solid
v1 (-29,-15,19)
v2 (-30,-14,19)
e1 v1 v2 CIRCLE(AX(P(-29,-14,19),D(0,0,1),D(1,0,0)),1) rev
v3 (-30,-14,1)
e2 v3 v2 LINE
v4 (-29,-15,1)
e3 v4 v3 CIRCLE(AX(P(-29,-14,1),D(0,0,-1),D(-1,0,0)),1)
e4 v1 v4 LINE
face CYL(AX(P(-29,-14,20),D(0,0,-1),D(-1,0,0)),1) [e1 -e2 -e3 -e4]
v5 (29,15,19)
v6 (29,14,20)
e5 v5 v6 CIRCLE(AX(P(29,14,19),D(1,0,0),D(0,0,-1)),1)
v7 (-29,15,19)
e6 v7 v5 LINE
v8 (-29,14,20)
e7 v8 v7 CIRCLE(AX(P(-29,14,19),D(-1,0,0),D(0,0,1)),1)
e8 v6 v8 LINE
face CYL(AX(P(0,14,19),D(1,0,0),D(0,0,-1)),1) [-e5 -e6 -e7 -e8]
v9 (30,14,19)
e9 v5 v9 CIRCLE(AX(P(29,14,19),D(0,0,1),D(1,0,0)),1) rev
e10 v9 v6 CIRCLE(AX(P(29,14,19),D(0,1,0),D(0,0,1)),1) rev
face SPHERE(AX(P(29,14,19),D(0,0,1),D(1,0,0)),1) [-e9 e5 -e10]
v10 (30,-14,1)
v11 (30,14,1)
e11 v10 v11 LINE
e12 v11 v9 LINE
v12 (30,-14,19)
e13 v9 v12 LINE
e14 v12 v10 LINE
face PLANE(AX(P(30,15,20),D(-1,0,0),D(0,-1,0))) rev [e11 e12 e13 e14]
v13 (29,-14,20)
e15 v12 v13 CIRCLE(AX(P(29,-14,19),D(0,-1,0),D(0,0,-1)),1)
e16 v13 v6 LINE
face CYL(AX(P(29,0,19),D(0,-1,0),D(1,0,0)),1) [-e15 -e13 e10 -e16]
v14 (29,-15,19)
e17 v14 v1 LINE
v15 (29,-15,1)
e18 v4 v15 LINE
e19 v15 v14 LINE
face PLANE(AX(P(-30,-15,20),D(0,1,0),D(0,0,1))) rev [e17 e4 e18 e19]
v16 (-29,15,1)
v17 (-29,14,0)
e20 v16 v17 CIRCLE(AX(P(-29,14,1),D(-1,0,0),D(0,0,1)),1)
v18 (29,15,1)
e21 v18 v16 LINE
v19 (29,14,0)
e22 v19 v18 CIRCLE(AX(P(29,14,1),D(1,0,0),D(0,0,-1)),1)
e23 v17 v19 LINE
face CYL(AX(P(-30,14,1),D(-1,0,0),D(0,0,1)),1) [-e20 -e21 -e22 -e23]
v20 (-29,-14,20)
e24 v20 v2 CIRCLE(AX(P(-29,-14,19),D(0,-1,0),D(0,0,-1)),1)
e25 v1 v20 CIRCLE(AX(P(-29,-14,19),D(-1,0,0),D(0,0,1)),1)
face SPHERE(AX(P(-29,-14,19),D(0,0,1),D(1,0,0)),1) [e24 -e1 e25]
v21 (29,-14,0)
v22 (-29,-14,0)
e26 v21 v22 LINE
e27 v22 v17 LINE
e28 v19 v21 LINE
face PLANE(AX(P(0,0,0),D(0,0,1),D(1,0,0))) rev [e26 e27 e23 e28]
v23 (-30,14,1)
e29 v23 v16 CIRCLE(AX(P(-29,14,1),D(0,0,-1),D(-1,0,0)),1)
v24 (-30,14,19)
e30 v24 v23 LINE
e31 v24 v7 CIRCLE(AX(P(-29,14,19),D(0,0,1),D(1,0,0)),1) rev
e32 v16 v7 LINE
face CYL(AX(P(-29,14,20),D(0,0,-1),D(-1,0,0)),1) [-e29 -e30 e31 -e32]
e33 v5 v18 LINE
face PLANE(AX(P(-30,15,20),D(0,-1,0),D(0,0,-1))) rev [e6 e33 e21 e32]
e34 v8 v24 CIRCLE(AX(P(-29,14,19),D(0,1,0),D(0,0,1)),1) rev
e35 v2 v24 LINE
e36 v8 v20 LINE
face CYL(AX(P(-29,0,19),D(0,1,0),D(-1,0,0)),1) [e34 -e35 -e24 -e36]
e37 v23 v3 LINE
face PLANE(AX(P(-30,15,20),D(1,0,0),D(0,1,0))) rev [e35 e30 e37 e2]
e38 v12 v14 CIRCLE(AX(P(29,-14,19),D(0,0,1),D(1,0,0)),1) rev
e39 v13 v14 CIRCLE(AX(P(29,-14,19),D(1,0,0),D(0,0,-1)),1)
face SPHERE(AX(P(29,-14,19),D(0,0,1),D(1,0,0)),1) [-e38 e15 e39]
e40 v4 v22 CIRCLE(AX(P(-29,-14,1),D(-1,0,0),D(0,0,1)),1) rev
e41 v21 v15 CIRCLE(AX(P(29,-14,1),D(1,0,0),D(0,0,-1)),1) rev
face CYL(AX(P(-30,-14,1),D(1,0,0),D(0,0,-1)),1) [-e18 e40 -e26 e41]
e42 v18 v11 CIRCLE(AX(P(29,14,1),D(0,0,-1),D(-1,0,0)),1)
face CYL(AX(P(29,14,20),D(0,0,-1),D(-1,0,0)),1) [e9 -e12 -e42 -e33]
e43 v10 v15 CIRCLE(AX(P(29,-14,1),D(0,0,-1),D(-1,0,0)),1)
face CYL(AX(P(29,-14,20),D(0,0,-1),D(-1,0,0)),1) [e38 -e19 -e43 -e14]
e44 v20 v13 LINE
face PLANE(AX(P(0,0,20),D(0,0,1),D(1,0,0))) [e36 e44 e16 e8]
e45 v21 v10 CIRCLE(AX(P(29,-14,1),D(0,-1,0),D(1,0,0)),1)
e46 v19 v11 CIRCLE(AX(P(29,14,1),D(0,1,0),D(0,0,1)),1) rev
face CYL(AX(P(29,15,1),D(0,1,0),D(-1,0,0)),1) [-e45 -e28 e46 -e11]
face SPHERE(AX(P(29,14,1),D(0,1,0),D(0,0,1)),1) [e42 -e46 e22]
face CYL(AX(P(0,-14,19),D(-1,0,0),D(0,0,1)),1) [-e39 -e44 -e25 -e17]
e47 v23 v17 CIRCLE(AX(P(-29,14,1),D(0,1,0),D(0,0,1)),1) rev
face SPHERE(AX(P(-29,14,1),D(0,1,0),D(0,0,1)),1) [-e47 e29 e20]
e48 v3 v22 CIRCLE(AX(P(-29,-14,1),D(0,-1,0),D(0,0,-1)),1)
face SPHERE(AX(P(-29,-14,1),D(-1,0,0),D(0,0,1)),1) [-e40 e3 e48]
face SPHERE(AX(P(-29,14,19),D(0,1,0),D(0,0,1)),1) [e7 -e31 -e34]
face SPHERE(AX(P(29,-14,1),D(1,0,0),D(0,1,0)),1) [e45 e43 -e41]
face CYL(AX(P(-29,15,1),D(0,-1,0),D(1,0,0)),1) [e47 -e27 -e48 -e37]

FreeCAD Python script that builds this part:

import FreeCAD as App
import Part
import Sketcher
from FreeCAD import Vector
Q = App.Units.Quantity


def add_polygon(sketch, points):
    """Adds a closed chain of lines whose ends are joined by coincident constraints."""
    first, n = sketch.GeometryCount, len(points)
    for a, b in zip(points, points[1:] + points[:1]):
        sketch.addGeometry(Part.LineSegment(App.Vector(*a, 0), App.Vector(*b, 0)), False)
    for i in range(n):
        sketch.addConstraint(Sketcher.Constraint("Coincident", first + i, 2, first + (i + 1) % n, 1))

doc = App.newDocument("Part")
body = doc.addObject("PartDesign::Body", "Body")

sketch1 = body.newObject("Sketcher::SketchObject", "Sketch")
sketch1.AttachmentSupport = (doc.getObject("XY_Plane"), [""])
sketch1.MapMode = "FlatFace"
add_polygon(sketch1, [(-30, 15), (-30, -15), (30, -15), (30, 15)])
sketch1.addConstraint(Sketcher.Constraint("Vertical", 0))
sketch1.addConstraint(Sketcher.Constraint("Horizontal", 1))
sketch1.addConstraint(Sketcher.Constraint("Vertical", 2))
sketch1.addConstraint(Sketcher.Constraint("Horizontal", 3))
sketch1.addConstraint(Sketcher.Constraint("Symmetric", 0, 2, 2, 2, -1, 1))
sketch1.addConstraint(Sketcher.Constraint("DistanceX", 1, 1, 1, 2, Q("60 mm")))
sketch1.addConstraint(Sketcher.Constraint("DistanceY", 0, 2, 0, 1, Q("30 mm")))
pad1 = body.newObject("PartDesign::Pad", "Pad")
pad1.Profile = sketch1
pad1.Length = 20
doc.recompute()

fillet = body.newObject("PartDesign::Fillet", "Fillet")
fillet.Base = (pad1, ["Edge1"])
fillet.UseAllEdges = True
fillet.Radius = 1

doc.recompute()
